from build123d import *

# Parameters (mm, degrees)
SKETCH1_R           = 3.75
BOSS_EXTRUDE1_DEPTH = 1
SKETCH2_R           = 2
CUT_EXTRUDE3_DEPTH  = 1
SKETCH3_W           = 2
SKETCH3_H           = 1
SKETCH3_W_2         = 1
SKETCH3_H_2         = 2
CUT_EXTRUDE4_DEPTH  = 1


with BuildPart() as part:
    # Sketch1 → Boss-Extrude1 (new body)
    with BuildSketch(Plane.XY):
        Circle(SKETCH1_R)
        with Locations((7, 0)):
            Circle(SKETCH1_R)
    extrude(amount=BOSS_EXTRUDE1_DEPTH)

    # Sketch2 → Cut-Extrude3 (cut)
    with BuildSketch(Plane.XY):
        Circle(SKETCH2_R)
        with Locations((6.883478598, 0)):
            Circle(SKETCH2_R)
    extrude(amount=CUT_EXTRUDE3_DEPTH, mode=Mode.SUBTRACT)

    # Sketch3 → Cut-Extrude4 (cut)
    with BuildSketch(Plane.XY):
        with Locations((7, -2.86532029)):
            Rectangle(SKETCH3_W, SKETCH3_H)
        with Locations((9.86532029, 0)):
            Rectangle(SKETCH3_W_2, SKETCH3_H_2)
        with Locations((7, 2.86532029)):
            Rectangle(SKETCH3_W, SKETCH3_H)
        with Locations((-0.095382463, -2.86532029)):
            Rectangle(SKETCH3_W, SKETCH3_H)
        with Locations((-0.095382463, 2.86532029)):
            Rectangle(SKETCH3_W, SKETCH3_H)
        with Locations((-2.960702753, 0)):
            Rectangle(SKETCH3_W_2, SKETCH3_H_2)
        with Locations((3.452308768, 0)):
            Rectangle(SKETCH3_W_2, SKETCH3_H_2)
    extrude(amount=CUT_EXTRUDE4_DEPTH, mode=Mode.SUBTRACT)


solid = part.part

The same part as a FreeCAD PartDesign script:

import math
import FreeCAD as App
import Part
import Sketcher
from FreeCAD import Vector

doc = App.newDocument("Part")
body = doc.addObject("PartDesign::Body", "Body")

# Sketch on XY plane
sketch1 = body.newObject("Sketcher::SketchObject", "Sketch")
sketch1.AttachmentSupport = (doc.getObject("XY_Plane"), [""])
sketch1.MapMode = "FlatFace"
sketch1.addGeometry([
    Part.ArcOfCircle(Part.Circle(Vector(7, 0, 0), Vector(0, 0, 1), 3.75), math.radians(-158.96053), math.radians(158.96053)),
    Part.ArcOfCircle(Part.Circle(Vector(0, 0, 0), Vector(0, 0, 1), 3.75), math.radians(21.03947), math.radians(338.96053)),
], False)
sketch1.addConstraint([
    Sketcher.Constraint("Coincident", 0, 1, 1, 2),
    Sketcher.Constraint("Coincident", 1, 1, 0, 2),
    Sketcher.Constraint("Coincident", 1, 3, -1, 1),
    Sketcher.Constraint("Equal", 0, 1),
    Sketcher.Constraint("PointOnObject", 0, 3, -1),
    Sketcher.Constraint("Radius", 0, 3.75),
    Sketcher.Constraint("DistanceX", -1, 1, 0, 3, 7.0),
])
pad1 = body.newObject("PartDesign::Pad", "Pad")
pad1.Profile = sketch1
pad1.Length = 1

# Sketch on XY plane
sketch2 = body.newObject("Sketcher::SketchObject", "Sketch001")
sketch2.AttachmentSupport = (doc.getObject("XY_Plane"), [""])
sketch2.MapMode = "FlatFace"
sketch2.addGeometry([
    Part.Circle(Vector(0, 0, 0), Vector(0, 0, 1), 2),
    Part.Circle(Vector(6.883479, 0, 0), Vector(0, 0, 1), 2),
], False)
sketch2.addConstraint([
    Sketcher.Constraint("Coincident", 0, 3, -1, 1),
    Sketcher.Constraint("Equal", 0, 1),
    Sketcher.Constraint("PointOnObject", 1, 3, -1),
    Sketcher.Constraint("Diameter", 0, 4.0),
    Sketcher.Constraint("DistanceX", -1, 1, 1, 3, 6.883479),
])
pocket1 = body.newObject("PartDesign::Pocket", "Pocket")
pocket1.Profile = sketch2
pocket1.Length = 1
pocket1.Reversed = True

# Sketch on XY plane
sketch3 = body.newObject("Sketcher::SketchObject", "Sketch002")
sketch3.AttachmentSupport = (doc.getObject("XY_Plane"), [""])
sketch3.MapMode = "FlatFace"
sketch3.addGeometry([
    Part.LineSegment(Vector(6, -2.36532, 0), Vector(6, -3.36532, 0)),  # 0
    Part.LineSegment(Vector(6, -3.36532, 0), Vector(8, -3.36532, 0)),  # 1
    Part.LineSegment(Vector(8, -3.36532, 0), Vector(8, -2.36532, 0)),  # 2
    Part.LineSegment(Vector(8, -2.36532, 0), Vector(6, -2.36532, 0)),  # 3
    Part.LineSegment(Vector(9.36532, 1, 0), Vector(9.36532, -1, 0)),  # 4
    Part.LineSegment(Vector(9.36532, -1, 0), Vector(10.36532, -1, 0)),  # 5
    Part.LineSegment(Vector(10.36532, -1, 0), Vector(10.36532, 1, 0)),  # 6
    Part.LineSegment(Vector(10.36532, 1, 0), Vector(9.36532, 1, 0)),  # 7
    Part.LineSegment(Vector(6, 3.36532, 0), Vector(6, 2.36532, 0)),  # 8
    Part.LineSegment(Vector(6, 2.36532, 0), Vector(8, 2.36532, 0)),  # 9
    Part.LineSegment(Vector(8, 2.36532, 0), Vector(8, 3.36532, 0)),  # 10
    Part.LineSegment(Vector(8, 3.36532, 0), Vector(6, 3.36532, 0)),  # 11
    Part.LineSegment(Vector(-1.095382, -2.36532, 0), Vector(-1.095382, -3.36532, 0)),  # 12
    Part.LineSegment(Vector(-1.095382, -3.36532, 0), Vector(0.904618, -3.36532, 0)),  # 13
    Part.LineSegment(Vector(0.904618, -3.36532, 0), Vector(0.904618, -2.36532, 0)),  # 14
    Part.LineSegment(Vector(0.904618, -2.36532, 0), Vector(-1.095382, -2.36532, 0)),  # 15
    Part.LineSegment(Vector(-1.095382, 3.36532, 0), Vector(-1.095382, 2.36532, 0)),  # 16
    Part.LineSegment(Vector(-1.095382, 2.36532, 0), Vector(0.904618, 2.36532, 0)),  # 17
    Part.LineSegment(Vector(0.904618, 2.36532, 0), Vector(0.904618, 3.36532, 0)),  # 18
    Part.LineSegment(Vector(0.904618, 3.36532, 0), Vector(-1.095382, 3.36532, 0)),  # 19
    Part.LineSegment(Vector(-3.460703, 1, 0), Vector(-3.460703, -1, 0)),  # 20
    Part.LineSegment(Vector(-3.460703, -1, 0), Vector(-2.460703, -1, 0)),  # 21
    Part.LineSegment(Vector(-2.460703, -1, 0), Vector(-2.460703, 1, 0)),  # 22
    Part.LineSegment(Vector(-2.460703, 1, 0), Vector(-3.460703, 1, 0)),  # 23
    Part.LineSegment(Vector(2.952309, 1, 0), Vector(2.952309, -1, 0)),  # 24
    Part.LineSegment(Vector(2.952309, -1, 0), Vector(3.952309, -1, 0)),  # 25
    Part.LineSegment(Vector(3.952309, -1, 0), Vector(3.952309, 1, 0)),  # 26
    Part.LineSegment(Vector(3.952309, 1, 0), Vector(2.952309, 1, 0)),  # 27
], False)
sketch3.addConstraint([
    Sketcher.Constraint("Coincident", 0, 2, 1, 1),
    Sketcher.Constraint("Coincident", 1, 2, 2, 1),
    Sketcher.Constraint("Coincident", 2, 2, 3, 1),
    Sketcher.Constraint("Coincident", 3, 2, 0, 1),
    Sketcher.Constraint("Coincident", 4, 2, 5, 1),
    Sketcher.Constraint("Coincident", 5, 2, 6, 1),
    Sketcher.Constraint("Coincident", 6, 2, 7, 1),
    Sketcher.Constraint("Coincident", 7, 2, 4, 1),
    Sketcher.Constraint("Coincident", 8, 2, 9, 1),
    Sketcher.Constraint("Coincident", 9, 2, 10, 1),
    Sketcher.Constraint("Coincident", 10, 2, 11, 1),
    Sketcher.Constraint("Coincident", 11, 2, 8, 1),
    Sketcher.Constraint("Coincident", 12, 2, 13, 1),
    Sketcher.Constraint("Coincident", 13, 2, 14, 1),
    Sketcher.Constraint("Coincident", 14, 2, 15, 1),
    Sketcher.Constraint("Coincident", 15, 2, 12, 1),
    Sketcher.Constraint("Coincident", 16, 2, 17, 1),
    Sketcher.Constraint("Coincident", 17, 2, 18, 1),
    Sketcher.Constraint("Coincident", 18, 2, 19, 1),
    Sketcher.Constraint("Coincident", 19, 2, 16, 1),
    Sketcher.Constraint("Coincident", 20, 2, 21, 1),
    Sketcher.Constraint("Coincident", 21, 2, 22, 1),
    Sketcher.Constraint("Coincident", 22, 2, 23, 1),
    Sketcher.Constraint("Coincident", 23, 2, 20, 1),
    Sketcher.Constraint("Coincident", 24, 2, 25, 1),
    Sketcher.Constraint("Coincident", 25, 2, 26, 1),
    Sketcher.Constraint("Coincident", 26, 2, 27, 1),
    Sketcher.Constraint("Coincident", 27, 2, 24, 1),
    Sketcher.Constraint("Vertical", 0),
    Sketcher.Constraint("Horizontal", 1),
    Sketcher.Constraint("Vertical", 2),
    Sketcher.Constraint("Horizontal", 3),
    Sketcher.Constraint("Vertical", 4),
    Sketcher.Constraint("Horizontal", 5),
    Sketcher.Constraint("Vertical", 6),
    Sketcher.Constraint("Horizontal", 7),
    Sketcher.Constraint("Vertical", 8),
    Sketcher.Constraint("Horizontal", 9),
    Sketcher.Constraint("Vertical", 10),
    Sketcher.Constraint("Horizontal", 11),
    Sketcher.Constraint("Vertical", 12),
    Sketcher.Constraint("Horizontal", 13),
    Sketcher.Constraint("Vertical", 14),
    Sketcher.Constraint("Horizontal", 15),
    Sketcher.Constraint("Vertical", 16),
    Sketcher.Constraint("Horizontal", 17),
    Sketcher.Constraint("Vertical", 18),
    Sketcher.Constraint("Horizontal", 19),
    Sketcher.Constraint("Vertical", 20),
    Sketcher.Constraint("Horizontal", 21),
    Sketcher.Constraint("Vertical", 22),
    Sketcher.Constraint("Horizontal", 23),
    Sketcher.Constraint("Vertical", 24),
    Sketcher.Constraint("Horizontal", 25),
    Sketcher.Constraint("Vertical", 26),
    Sketcher.Constraint("Horizontal", 27),
    Sketcher.Constraint("Symmetric", 3, 2, 8, 2, -1),
    Sketcher.Constraint("Symmetric", 1, 2, 10, 2, -1),
    Sketcher.Constraint("Symmetric", 15, 2, 16, 2, -1),
    Sketcher.Constraint("Symmetric", 13, 2, 18, 2, -1),
    Sketcher.Constraint("Horizontal", 1, 2, 12, 2),
    Sketcher.Constraint("Horizontal", 3, 2, 14, 2),
    Sketcher.Constraint("Horizontal", 5, 2, 20, 2),
    Sketcher.Constraint("Horizontal", 7, 2, 22, 2),
    Sketcher.Constraint("Horizontal", 21, 2, 24, 2),
    Sketcher.Constraint("Horizontal", 23, 2, 26, 2),
    Sketcher.Constraint("Equal", 11, 13),
    Sketcher.Constraint("Equal", 7, 21),
    Sketcher.Constraint("Equal", 23, 25),
    Sketcher.Constraint("Equal", 27, 0),
    Sketcher.Constraint("Equal", 19, 4),
    Sketcher.Constraint("DistanceX", 1, 1, 1, 2, 2.0),
    Sketcher.Constraint("DistanceX", 5, 1, 5, 2, 1.0),
    Sketcher.Constraint("DistanceX", -1, 1, 0, 2, 6.0),
    Sketcher.Constraint("DistanceY", 4, 2, -1, 1, 1.0),
    Sketcher.Constraint("DistanceY", 0, 2, -1, 1, 3.36532),
    Sketcher.Constraint("DistanceX", -1, 1, 4, 2, 9.36532),
    Sketcher.Constraint("DistanceX", -1, 1, 24, 2, 2.952309),
    Sketcher.Constraint("DistanceX", 20, 2, 15, 2, 2.36532),
    Sketcher.Constraint("DistanceX", 14, 2, 24, 2, 2.047691),
])
pocket2 = body.newObject("PartDesign::Pocket", "Pocket001")
pocket2.Profile = sketch3
pocket2.Length = 1
pocket2.Reversed = True

doc.recompute()
